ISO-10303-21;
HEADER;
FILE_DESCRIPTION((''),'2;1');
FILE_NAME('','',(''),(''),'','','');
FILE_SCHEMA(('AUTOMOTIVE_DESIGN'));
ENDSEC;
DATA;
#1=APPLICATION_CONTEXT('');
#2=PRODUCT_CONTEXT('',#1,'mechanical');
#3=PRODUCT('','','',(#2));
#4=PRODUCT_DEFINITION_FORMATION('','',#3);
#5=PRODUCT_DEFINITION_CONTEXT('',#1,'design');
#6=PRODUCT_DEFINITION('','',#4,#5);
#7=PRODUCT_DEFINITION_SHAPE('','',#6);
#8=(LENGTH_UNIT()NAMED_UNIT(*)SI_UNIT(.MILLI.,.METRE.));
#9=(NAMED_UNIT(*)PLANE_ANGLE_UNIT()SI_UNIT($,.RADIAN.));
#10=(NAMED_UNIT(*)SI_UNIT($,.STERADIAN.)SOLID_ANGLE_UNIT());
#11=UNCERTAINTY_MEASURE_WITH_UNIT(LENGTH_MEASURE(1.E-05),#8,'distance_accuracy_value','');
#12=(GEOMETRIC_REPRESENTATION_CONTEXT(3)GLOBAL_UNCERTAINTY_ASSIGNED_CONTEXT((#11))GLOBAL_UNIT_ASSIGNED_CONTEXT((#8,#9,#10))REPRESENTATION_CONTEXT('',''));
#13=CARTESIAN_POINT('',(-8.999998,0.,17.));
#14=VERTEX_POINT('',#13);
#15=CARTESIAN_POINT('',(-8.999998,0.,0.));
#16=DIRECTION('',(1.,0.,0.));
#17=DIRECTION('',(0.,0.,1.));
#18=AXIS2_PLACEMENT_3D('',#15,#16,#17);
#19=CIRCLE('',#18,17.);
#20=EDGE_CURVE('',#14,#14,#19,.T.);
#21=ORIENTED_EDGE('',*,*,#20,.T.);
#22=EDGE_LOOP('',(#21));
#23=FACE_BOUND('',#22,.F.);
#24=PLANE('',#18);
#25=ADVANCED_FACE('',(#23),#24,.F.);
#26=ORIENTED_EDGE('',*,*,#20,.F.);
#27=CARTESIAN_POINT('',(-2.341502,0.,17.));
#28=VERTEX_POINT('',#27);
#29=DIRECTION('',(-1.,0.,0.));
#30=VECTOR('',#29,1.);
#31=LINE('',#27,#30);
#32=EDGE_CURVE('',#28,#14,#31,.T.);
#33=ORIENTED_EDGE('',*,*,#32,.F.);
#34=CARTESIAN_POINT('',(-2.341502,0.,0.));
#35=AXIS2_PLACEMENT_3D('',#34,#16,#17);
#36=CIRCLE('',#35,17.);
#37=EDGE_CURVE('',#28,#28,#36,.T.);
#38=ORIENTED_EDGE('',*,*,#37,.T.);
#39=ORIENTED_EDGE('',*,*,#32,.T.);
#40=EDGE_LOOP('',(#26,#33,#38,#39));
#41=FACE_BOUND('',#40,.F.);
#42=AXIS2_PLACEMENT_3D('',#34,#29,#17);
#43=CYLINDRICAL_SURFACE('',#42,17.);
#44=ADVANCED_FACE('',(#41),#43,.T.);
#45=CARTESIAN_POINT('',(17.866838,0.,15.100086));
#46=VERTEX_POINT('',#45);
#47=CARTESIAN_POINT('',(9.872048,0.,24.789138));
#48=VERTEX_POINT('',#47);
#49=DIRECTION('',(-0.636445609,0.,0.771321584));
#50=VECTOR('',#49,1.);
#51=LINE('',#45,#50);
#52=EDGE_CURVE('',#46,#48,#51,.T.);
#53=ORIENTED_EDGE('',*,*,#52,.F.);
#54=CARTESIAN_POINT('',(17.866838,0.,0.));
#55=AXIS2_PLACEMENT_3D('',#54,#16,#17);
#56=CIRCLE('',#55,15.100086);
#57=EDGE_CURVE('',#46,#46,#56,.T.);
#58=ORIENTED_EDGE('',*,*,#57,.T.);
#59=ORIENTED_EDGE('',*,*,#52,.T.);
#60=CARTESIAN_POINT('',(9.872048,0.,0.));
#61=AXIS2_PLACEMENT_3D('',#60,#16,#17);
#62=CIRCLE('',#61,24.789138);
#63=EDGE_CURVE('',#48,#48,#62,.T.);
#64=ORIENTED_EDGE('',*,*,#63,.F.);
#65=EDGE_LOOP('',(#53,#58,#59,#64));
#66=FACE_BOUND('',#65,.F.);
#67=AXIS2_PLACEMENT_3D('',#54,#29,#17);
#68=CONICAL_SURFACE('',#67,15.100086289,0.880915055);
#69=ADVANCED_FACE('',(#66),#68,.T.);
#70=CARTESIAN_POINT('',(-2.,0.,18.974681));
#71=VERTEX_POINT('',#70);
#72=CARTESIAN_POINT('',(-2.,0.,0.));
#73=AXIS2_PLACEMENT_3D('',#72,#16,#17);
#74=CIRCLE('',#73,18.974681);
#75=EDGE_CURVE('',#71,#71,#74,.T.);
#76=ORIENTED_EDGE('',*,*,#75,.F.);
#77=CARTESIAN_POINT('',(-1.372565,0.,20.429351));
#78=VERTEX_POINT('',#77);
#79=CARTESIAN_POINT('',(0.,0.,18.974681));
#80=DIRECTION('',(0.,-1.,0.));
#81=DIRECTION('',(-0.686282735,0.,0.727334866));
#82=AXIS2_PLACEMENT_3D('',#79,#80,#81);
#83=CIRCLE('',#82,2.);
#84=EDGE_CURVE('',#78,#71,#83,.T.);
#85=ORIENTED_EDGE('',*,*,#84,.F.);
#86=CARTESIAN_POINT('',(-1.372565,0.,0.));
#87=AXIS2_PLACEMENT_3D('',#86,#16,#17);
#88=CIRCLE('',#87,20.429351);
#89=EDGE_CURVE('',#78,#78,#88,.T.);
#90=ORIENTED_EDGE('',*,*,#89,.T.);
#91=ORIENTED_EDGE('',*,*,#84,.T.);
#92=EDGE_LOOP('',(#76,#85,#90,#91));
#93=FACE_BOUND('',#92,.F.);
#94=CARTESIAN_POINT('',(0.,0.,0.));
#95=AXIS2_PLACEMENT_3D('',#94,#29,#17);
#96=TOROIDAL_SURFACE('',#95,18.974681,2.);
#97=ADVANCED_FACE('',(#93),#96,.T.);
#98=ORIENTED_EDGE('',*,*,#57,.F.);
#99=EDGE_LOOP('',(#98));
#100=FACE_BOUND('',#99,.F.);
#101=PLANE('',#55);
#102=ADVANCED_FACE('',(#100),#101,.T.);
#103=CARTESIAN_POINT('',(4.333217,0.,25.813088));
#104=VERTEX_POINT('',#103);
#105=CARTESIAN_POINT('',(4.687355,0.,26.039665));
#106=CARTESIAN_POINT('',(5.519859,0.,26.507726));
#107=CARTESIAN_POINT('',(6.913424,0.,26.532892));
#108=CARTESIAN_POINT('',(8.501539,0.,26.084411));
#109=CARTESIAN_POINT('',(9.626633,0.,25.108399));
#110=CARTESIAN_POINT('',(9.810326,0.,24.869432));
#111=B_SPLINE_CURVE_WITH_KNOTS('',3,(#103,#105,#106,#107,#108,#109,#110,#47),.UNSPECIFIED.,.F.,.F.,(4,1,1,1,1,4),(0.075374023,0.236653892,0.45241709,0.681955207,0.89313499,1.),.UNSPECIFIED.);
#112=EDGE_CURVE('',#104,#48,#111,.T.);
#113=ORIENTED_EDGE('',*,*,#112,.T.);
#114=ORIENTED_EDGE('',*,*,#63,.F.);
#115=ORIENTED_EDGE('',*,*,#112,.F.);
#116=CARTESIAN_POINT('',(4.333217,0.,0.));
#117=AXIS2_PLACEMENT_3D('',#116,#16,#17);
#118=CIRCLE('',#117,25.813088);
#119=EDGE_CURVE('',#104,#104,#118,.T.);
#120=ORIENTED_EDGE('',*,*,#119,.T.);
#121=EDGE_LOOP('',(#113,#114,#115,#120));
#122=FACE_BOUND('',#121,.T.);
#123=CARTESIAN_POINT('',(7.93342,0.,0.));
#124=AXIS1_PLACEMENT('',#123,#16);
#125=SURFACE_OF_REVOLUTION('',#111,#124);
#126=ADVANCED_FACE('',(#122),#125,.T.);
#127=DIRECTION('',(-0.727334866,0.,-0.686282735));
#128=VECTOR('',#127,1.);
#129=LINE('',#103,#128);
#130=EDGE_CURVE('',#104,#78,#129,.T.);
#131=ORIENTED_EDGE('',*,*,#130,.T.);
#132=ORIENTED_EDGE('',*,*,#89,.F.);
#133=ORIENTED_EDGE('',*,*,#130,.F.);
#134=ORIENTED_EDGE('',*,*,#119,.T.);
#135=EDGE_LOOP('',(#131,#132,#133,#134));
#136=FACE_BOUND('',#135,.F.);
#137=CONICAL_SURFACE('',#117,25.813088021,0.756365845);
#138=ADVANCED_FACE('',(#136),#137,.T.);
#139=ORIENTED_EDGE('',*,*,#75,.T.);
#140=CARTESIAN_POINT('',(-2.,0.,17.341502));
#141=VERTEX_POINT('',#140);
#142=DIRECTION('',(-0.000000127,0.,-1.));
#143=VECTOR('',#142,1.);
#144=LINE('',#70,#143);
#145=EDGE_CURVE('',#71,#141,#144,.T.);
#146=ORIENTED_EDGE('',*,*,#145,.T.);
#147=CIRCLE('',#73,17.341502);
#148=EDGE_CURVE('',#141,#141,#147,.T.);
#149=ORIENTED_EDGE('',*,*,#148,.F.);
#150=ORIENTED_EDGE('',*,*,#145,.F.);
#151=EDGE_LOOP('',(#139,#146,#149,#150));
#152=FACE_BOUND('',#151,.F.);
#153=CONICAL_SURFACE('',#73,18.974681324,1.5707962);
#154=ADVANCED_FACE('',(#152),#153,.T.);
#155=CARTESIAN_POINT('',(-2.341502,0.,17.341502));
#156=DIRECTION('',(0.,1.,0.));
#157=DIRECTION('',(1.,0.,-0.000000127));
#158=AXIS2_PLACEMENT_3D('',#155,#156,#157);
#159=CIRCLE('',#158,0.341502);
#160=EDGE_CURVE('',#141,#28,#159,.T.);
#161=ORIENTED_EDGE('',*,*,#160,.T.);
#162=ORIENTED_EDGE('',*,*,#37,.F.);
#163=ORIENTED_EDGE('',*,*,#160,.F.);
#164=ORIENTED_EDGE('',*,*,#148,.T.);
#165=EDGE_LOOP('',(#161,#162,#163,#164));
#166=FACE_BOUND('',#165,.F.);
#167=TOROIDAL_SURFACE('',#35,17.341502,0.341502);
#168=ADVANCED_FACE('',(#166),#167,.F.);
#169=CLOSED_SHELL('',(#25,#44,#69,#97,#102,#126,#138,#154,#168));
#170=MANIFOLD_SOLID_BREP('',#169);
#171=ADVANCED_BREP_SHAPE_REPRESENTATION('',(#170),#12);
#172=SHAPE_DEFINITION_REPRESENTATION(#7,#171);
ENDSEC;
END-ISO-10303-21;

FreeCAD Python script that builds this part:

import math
import FreeCAD as App
import Part
import Sketcher
from FreeCAD import Vector
Q = App.Units.Quantity

doc = App.newDocument("Part")
body = doc.addObject("PartDesign::Body", "Body")

# Sketch on XZ plane
sketch1 = body.newObject("Sketcher::SketchObject", "Sketch")
sketch1.AttachmentSupport = (doc.getObject("XZ_Plane"), [""])
sketch1.MapMode = "FlatFace"
sketch1.addGeometry([
    Part.LineSegment(Vector(17.866838, 15.100086, 0), Vector(9.872048, 24.789138, 0)),  # 0
    Part.BSplineCurve([Vector(4.333217, 25.813088, 0), Vector(4.687355, 26.039665, 0), Vector(5.519859, 26.507726, 0), Vector(6.913424, 26.532892, 0), Vector(8.501539, 26.084411, 0), Vector(9.626633, 25.108399, 0), Vector(9.810326, 24.869432, 0), Vector(9.872048, 24.789138, 0)], [4, 1, 1, 1, 1, 4], [0.075374023, 0.236653892, 0.45241709, 0.681955207, 0.89313499, 1], False, 3, [1, 1, 1, 1, 1, 1, 1, 1], False),  # 1
    Part.LineSegment(Vector(4.333217, 25.813088, 0), Vector(-1.372565, 20.429351, 0)),  # 2
    Part.ArcOfCircle(Part.Circle(Vector(0, 18.974681, 0), Vector(0, 0, 1), 2), math.radians(133.336571), math.radians(179.999985)),  # 3
    Part.LineSegment(Vector(-2, 18.974681, 0), Vector(-2, 17.341502, 0)),  # 4
    Part.ArcOfCircle(Part.Circle(Vector(-2.341502, 17.341502, 0), Vector(0, 0, 1), 0.341502), math.radians(-90), math.radians(-0.000007)),  # 5
    Part.LineSegment(Vector(-2.341502, 17, 0), Vector(-8.999998, 17, 0)),  # 6
    Part.LineSegment(Vector(-8.999998, 17, 0), Vector(-8.999998, 0, 0)),  # 7
    Part.LineSegment(Vector(-8.999998, 0, 0), Vector(17.866838, 0, 0)),  # 8
    Part.LineSegment(Vector(17.866838, 0, 0), Vector(17.866838, 15.100086, 0)),  # 9
], False)
sketch1.addConstraint([
    Sketcher.Constraint("Block", 1),
    Sketcher.Constraint("Coincident", 0, 2, 1, 2),
    Sketcher.Constraint("Coincident", 1, 1, 2, 1),
    Sketcher.Constraint("Tangent", 2, 2, 3, 1),
    Sketcher.Constraint("Tangent", 3, 2, 4, 1),
    Sketcher.Constraint("Tangent", 4, 2, 5, 2),
    Sketcher.Constraint("Tangent", 5, 1, 6, 1),
    Sketcher.Constraint("Coincident", 6, 2, 7, 1),
    Sketcher.Constraint("Coincident", 7, 2, 8, 1),
    Sketcher.Constraint("Coincident", 8, 2, 9, 1),
    Sketcher.Constraint("Coincident", 9, 2, 0, 1),
    Sketcher.Constraint("Vertical", 4),
    Sketcher.Constraint("Horizontal", 6),
    Sketcher.Constraint("Vertical", 7),
    Sketcher.Constraint("Horizontal", 8),
    Sketcher.Constraint("Vertical", 9),
    Sketcher.Constraint("PointOnObject", 3, 3, -2),
    Sketcher.Constraint("PointOnObject", 7, 2, -1),
    Sketcher.Constraint("Radius", 3, Q("2 mm")),
    Sketcher.Constraint("DistanceY", 7, 2, 7, 1, Q("17 mm")),
    Sketcher.Constraint("DistanceX", 6, 2, 4, 2, Q("6.999998 mm")),
    Sketcher.Constraint("Radius", 5, Q("0.341502 mm")),
    Sketcher.Constraint("DistanceY", 4, 2, 4, 1, Q("1.633179 mm")),
    Sketcher.Constraint("DistanceX", 8, 1, 8, 2, Q("26.866836 mm")),
    Sketcher.Constraint("DistanceY", 9, 1, 9, 2, Q("15.100086 mm")),
])
revolution = body.newObject("PartDesign::Revolution", "Revolution")
revolution.Profile = sketch1
revolution.ReferenceAxis = (sketch1, ["H_Axis"])
revolution.Angle = 360

doc.recompute()
